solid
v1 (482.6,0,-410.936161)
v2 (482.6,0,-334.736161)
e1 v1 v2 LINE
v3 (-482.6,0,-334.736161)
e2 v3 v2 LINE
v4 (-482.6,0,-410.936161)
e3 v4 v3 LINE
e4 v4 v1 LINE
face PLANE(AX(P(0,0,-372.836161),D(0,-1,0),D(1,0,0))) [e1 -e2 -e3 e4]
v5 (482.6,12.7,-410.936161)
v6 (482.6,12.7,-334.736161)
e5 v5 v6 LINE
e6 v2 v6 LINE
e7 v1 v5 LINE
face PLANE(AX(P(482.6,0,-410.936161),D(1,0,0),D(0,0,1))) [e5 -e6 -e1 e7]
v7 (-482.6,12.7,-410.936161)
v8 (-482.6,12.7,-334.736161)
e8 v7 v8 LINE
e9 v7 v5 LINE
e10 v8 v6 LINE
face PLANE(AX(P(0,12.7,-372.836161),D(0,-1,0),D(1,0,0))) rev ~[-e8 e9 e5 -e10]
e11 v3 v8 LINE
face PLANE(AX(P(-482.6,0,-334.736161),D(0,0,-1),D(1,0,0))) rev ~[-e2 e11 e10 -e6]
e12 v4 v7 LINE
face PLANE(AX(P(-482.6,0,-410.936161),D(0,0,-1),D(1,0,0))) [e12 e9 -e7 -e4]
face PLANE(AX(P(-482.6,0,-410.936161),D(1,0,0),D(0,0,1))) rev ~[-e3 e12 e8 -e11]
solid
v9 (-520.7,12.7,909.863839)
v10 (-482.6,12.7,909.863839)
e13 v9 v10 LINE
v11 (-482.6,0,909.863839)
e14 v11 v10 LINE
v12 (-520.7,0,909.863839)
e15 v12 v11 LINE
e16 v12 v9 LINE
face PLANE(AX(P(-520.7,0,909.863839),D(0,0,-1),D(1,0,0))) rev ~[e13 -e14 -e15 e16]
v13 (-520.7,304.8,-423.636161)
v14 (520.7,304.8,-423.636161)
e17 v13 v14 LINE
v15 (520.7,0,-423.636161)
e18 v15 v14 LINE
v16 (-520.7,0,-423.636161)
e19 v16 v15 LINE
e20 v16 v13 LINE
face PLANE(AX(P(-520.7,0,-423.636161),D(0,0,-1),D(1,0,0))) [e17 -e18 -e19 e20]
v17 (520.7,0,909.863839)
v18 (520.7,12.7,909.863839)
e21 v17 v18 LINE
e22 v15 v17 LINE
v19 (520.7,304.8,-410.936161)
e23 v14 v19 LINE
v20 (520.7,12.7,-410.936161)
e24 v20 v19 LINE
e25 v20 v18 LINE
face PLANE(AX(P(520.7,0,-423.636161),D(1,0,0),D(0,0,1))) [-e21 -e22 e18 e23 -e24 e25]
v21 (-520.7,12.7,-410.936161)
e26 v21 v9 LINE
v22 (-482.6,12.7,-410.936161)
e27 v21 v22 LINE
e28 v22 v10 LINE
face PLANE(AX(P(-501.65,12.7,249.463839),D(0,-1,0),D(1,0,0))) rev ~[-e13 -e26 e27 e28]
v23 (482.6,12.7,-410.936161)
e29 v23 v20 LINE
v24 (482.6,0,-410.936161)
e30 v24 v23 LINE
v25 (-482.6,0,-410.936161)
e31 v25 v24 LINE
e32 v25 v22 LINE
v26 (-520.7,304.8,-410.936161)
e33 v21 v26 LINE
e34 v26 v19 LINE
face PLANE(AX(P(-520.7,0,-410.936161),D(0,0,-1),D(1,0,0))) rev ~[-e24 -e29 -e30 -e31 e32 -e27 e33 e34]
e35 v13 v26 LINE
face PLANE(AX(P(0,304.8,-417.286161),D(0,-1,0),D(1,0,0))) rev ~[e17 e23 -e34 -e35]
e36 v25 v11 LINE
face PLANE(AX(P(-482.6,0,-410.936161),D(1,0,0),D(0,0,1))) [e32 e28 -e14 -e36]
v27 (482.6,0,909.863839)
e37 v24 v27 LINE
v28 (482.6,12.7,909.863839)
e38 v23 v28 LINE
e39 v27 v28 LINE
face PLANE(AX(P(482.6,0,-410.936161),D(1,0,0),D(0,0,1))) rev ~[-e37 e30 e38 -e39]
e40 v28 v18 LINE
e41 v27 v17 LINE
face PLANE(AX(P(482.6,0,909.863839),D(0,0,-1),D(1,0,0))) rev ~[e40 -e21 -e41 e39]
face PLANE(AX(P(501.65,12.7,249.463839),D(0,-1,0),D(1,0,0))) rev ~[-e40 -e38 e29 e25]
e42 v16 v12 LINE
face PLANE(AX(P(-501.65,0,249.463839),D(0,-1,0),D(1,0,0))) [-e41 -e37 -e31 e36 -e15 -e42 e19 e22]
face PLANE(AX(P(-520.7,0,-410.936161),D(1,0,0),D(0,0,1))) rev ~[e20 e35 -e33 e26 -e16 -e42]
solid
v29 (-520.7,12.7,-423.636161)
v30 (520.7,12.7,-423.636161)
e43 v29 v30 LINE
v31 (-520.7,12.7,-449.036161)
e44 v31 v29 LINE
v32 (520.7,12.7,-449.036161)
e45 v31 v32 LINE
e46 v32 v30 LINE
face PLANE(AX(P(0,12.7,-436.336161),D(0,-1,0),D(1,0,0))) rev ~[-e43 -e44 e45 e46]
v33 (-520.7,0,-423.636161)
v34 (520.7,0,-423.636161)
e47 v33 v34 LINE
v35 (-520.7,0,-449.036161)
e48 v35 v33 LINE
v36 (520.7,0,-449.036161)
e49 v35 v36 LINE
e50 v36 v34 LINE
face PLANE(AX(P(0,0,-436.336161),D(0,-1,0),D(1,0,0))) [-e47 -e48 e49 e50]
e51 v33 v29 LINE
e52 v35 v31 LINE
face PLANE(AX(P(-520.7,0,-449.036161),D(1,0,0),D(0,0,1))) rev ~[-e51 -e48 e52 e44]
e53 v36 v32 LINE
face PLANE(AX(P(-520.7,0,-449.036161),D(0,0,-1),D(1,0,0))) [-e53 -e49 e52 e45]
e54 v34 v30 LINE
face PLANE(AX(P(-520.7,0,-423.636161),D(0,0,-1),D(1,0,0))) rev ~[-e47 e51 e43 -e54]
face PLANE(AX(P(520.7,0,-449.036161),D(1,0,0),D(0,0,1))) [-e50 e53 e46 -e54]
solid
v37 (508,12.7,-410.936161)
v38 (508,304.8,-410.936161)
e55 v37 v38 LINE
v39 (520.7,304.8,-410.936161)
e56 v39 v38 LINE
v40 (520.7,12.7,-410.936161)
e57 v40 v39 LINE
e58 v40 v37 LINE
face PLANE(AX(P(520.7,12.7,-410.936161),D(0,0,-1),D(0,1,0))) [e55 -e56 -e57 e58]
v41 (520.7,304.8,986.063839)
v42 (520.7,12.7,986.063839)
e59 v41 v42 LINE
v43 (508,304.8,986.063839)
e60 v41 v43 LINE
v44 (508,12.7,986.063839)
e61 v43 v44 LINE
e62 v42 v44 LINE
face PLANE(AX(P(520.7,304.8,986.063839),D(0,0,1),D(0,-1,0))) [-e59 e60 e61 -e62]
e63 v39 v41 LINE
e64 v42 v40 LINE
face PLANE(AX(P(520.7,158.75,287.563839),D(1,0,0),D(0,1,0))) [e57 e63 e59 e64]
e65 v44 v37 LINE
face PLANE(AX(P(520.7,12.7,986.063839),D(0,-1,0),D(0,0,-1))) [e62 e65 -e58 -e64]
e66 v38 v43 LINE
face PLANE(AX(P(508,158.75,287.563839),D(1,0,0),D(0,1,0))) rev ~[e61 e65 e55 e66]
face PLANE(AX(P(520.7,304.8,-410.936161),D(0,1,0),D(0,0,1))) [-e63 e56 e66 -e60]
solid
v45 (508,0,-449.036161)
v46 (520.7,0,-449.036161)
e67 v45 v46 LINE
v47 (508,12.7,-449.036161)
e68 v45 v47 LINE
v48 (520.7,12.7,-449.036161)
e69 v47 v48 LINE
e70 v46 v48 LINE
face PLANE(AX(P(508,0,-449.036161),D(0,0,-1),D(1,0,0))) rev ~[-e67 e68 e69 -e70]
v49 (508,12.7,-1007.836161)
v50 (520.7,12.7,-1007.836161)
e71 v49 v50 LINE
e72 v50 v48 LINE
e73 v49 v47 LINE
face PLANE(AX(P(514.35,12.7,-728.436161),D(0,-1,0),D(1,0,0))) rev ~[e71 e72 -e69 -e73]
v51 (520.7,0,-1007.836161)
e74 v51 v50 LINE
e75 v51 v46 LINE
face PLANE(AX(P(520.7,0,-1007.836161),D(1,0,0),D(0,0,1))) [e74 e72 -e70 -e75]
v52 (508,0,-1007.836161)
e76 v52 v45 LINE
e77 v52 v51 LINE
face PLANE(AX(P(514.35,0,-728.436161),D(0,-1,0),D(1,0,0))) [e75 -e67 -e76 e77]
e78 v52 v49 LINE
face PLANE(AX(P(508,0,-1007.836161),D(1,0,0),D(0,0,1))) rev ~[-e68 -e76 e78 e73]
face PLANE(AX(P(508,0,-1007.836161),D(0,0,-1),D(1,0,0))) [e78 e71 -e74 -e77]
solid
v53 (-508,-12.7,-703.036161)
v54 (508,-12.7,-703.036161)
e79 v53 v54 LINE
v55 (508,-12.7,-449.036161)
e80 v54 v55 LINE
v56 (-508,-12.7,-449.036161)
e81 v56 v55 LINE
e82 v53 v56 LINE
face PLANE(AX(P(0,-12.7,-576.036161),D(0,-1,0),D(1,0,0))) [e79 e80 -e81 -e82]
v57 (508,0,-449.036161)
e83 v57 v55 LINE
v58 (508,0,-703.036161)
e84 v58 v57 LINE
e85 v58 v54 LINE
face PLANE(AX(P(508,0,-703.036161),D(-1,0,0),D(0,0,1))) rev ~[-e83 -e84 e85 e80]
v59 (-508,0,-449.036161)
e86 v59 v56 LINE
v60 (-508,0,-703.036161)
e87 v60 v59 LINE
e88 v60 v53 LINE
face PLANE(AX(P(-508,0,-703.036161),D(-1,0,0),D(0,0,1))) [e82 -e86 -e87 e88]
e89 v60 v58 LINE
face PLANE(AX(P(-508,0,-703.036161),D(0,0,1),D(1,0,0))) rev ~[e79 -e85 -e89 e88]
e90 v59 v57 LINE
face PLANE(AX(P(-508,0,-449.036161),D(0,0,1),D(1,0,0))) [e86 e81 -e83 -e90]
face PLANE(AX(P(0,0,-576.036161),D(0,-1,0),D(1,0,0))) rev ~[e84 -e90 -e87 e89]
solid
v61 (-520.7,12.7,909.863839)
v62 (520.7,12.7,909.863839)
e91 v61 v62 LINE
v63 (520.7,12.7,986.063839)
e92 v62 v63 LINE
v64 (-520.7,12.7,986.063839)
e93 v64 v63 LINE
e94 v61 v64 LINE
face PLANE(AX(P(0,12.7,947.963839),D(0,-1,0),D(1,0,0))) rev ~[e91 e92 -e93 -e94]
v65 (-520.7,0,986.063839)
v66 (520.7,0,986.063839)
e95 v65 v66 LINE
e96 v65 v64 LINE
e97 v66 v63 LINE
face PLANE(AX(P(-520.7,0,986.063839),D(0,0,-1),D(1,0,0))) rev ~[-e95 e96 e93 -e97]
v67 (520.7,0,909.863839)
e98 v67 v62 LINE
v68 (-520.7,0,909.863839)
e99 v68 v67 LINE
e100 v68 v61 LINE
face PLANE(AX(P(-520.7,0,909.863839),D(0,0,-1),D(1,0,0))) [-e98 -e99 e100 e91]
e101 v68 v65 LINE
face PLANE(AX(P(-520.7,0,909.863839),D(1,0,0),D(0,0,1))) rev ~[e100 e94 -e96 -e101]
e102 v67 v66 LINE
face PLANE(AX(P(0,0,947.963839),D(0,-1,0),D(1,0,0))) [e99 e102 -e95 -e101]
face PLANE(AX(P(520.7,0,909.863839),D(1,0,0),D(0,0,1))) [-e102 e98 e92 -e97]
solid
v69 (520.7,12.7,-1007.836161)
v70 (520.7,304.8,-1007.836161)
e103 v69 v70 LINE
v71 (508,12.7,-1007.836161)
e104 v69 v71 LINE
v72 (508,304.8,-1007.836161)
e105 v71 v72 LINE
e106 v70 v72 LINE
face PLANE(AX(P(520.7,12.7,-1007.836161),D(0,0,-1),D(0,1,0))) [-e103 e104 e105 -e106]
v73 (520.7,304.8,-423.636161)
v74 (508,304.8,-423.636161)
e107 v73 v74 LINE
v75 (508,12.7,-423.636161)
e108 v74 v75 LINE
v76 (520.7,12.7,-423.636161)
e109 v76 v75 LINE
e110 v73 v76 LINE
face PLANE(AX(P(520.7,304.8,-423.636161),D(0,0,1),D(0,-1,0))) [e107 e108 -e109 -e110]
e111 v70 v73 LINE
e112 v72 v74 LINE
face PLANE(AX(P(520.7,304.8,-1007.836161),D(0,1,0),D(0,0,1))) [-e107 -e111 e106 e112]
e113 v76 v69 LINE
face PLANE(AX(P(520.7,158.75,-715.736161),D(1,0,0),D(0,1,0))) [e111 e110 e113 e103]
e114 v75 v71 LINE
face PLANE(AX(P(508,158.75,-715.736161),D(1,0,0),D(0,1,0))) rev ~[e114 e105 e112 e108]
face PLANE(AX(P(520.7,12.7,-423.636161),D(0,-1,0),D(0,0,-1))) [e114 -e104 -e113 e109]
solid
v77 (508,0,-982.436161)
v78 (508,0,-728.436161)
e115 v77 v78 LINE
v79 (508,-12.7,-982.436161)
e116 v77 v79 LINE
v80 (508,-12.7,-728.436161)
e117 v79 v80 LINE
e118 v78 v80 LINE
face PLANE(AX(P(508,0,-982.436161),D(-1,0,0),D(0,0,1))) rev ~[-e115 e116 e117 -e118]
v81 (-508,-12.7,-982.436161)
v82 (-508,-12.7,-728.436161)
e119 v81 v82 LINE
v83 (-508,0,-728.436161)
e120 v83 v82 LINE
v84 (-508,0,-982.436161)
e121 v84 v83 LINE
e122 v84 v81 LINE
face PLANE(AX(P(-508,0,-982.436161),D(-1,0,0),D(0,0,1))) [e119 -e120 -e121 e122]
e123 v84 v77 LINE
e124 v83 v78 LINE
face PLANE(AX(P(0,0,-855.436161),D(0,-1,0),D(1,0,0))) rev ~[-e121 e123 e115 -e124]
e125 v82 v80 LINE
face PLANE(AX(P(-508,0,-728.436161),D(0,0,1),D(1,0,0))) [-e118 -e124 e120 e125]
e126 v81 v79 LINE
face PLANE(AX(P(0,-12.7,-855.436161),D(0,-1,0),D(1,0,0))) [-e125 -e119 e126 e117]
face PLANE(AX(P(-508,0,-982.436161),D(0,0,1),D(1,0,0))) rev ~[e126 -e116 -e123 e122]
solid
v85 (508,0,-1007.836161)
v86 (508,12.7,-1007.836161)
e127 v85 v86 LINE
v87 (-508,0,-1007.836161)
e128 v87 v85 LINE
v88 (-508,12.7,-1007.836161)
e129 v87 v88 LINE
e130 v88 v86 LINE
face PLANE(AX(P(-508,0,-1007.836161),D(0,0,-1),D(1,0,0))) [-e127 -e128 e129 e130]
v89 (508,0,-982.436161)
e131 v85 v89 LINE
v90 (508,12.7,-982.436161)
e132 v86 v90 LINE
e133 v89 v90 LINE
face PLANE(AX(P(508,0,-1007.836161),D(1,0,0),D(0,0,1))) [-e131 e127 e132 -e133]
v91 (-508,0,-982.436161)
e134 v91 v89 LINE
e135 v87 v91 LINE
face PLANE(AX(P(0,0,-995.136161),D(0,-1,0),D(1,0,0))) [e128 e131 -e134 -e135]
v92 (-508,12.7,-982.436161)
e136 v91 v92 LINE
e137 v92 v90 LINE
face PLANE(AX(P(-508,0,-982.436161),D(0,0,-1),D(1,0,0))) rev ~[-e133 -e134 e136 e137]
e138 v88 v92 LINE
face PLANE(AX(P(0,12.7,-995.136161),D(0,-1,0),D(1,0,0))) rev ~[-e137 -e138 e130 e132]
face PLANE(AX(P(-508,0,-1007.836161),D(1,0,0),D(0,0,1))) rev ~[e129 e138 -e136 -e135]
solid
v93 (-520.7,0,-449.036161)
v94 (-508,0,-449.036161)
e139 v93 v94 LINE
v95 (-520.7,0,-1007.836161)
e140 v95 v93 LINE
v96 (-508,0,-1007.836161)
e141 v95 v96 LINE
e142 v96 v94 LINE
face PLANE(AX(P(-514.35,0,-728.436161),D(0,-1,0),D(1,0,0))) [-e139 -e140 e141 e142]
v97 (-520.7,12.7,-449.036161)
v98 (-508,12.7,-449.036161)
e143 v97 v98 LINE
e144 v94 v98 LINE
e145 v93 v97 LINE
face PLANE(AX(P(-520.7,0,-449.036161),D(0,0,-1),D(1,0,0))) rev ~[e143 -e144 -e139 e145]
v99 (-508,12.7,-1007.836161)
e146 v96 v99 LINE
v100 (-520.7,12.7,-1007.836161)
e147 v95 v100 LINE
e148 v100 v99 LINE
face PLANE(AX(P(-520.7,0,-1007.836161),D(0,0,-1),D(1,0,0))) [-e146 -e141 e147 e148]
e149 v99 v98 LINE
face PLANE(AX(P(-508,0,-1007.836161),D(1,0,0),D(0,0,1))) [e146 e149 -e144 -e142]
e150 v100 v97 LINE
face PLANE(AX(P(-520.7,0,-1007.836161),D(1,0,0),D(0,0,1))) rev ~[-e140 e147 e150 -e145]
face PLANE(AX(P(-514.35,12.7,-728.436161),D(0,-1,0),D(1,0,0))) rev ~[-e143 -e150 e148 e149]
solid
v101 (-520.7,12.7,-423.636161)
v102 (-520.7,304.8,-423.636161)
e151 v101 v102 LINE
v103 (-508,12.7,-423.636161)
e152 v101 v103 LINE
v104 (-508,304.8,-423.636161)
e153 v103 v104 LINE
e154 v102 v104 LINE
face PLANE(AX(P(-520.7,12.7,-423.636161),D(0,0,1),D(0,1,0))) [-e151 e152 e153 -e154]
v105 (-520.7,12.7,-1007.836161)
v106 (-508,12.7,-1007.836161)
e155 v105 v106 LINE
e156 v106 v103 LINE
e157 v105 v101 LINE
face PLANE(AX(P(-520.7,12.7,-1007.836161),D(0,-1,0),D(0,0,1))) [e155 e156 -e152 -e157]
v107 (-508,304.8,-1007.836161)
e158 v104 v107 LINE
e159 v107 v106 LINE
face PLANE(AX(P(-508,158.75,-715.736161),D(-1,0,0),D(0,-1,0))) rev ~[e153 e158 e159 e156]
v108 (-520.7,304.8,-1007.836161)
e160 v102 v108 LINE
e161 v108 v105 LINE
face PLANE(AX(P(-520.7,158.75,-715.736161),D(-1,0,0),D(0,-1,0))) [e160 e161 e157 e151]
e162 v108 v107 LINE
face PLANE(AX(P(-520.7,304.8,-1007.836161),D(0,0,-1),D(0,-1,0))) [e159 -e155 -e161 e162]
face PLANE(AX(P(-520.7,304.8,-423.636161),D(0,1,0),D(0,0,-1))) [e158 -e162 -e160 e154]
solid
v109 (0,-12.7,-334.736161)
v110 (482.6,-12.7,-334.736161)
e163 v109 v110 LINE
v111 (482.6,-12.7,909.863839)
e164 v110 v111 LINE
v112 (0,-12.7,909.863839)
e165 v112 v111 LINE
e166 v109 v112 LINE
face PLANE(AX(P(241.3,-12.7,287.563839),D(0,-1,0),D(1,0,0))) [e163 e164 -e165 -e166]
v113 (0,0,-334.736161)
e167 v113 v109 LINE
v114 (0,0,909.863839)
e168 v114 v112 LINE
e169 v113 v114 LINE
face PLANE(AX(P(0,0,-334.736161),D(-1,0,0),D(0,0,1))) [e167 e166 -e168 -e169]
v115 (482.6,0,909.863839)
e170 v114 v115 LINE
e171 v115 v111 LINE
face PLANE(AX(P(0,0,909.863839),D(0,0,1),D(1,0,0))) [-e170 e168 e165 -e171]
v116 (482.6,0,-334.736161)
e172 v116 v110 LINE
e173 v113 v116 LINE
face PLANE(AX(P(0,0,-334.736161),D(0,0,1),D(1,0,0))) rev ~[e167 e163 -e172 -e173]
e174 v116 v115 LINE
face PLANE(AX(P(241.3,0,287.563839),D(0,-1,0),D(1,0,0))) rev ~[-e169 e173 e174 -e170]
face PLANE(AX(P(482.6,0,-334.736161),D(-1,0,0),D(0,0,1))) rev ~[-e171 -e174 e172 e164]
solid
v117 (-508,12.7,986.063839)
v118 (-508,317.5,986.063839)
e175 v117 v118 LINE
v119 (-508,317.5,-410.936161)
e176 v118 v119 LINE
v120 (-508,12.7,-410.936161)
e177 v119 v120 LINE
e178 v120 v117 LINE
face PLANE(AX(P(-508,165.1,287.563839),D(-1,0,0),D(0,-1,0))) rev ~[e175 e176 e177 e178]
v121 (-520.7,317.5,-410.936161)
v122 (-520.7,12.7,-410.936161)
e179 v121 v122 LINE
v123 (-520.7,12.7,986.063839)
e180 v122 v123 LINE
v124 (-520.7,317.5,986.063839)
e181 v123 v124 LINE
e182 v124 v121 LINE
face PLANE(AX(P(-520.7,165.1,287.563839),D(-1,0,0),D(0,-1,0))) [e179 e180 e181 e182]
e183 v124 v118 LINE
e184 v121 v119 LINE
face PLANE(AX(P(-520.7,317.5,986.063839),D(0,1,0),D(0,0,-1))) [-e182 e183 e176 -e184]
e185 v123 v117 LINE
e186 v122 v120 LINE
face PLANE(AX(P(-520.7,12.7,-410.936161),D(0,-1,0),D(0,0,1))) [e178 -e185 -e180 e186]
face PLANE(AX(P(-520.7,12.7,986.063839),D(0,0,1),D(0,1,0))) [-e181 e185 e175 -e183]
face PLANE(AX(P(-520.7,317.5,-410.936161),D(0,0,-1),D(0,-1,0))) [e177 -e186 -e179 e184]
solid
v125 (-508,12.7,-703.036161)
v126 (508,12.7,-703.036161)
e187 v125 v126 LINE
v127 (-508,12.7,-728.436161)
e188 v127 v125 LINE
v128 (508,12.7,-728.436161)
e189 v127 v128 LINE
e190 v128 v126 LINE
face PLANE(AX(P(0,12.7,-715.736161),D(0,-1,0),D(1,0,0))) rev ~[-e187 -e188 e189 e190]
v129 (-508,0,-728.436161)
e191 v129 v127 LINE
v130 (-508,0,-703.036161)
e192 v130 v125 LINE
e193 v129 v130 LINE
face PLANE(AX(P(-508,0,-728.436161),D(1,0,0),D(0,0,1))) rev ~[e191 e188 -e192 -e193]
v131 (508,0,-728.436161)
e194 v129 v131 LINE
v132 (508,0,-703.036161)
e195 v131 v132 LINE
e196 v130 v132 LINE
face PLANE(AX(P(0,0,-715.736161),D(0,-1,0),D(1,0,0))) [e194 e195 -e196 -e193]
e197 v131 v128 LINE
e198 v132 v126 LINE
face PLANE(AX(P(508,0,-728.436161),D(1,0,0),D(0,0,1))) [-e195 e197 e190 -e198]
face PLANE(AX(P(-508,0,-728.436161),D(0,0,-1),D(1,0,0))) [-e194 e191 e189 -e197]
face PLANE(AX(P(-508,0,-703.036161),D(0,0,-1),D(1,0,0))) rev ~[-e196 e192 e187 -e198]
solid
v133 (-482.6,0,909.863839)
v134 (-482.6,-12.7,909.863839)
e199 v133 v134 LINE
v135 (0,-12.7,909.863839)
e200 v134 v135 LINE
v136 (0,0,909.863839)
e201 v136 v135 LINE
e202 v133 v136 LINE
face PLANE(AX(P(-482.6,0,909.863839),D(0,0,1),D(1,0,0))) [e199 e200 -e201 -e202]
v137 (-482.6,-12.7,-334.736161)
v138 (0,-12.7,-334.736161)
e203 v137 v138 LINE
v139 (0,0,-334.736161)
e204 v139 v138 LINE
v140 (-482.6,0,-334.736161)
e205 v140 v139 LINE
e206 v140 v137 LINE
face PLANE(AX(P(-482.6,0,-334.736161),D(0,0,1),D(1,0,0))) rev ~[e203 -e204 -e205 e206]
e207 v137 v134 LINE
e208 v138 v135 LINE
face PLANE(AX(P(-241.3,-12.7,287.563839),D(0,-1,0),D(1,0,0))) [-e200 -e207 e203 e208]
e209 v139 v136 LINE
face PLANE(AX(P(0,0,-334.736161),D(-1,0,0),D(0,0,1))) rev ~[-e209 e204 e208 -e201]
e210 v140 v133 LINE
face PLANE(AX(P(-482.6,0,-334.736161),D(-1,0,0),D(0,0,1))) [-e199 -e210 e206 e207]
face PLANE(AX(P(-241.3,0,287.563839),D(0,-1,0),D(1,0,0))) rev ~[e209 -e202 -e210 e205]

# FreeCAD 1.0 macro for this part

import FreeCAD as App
import Part
import Sketcher

V = App.Vector
Q = App.Units.Quantity

doc = App.newDocument("Part")
params = doc.addObject("Spreadsheet::Sheet", "Params")
for row, (alias, value) in enumerate([
    ("sketch1_width", "19 in"),
    ("sketch1_height", "49 in"),
    ("pad1_length", "0.5 in"),
    ("sketch2_width", "40 in"),
    ("sketch2_height", "13 in"),
    ("pad2_length", "0.5 in"),
    ("sketch3_width", "10 in"),
    ("sketch3_height", "40 in"),
    ("pad3_length", "0.5 in"),
    ("sketch4_width", "40 in"),
    ("sketch4_height", "10 in"),
    ("pad4_length", "0.5 in"),
    ("sketch5_width", "40 in"),
    ("sketch5_height", "10 in"),
    ("pad5_length", "0.5 in"),
    ("sketch6_width", "19 in"),
    ("sketch6_height", "49 in"),
    ("pad6_length", "0.5 in"),
    ("sketch7_width", "19 in"),
    ("sketch7_height", "49 in"),
    ("pad7_length", "0.5 in"),
    ("sketch8_width", "41 in"),
    ("sketch8_height", "1 in"),
    ("pad8_length", "0.5 in"),
    ("sketch9_width", "38 in"),
    ("sketch9_height", "3 in"),
    ("pad9_length", "0.5 in"),
    ("sketch10_width", "40 in"),
    ("sketch10_height", "1 in"),
    ("pad10_length", "0.5 in"),
    ("sketch11_width", "40 in"),
    ("sketch11_height", "1 in"),
    ("pad11_length", "0.5 in"),
    ("sketch12_width", "41 in"),
    ("sketch12_height", "3 in"),
    ("pad12_length", "0.5 in"),
    ("sketch13_width", "41 in"),
    ("sketch13_height", "0.5 in"),
    ("pad13_length", "12 in"),
    ("sketch14_height", "52 in"),
    ("sketch14_width", "1.5 in"),
    ("pad14_length", "0.5 in"),
    ("sketch15_height", "22 in"),
    ("sketch15_width", "0.5 in"),
    ("pad15_length", "0.5 in"),
    ("sketch16_height", "23 in"),
    ("sketch16_width", "11.5 in"),
    ("pad16_length", "0.5 in"),
    ("sketch17_height", "23 in"),
    ("sketch17_width", "11.5 in"),
    ("pad17_length", "0.5 in"),
    ("sketch18_width", "12 in"),
    ("sketch18_height", "55 in"),
    ("pad18_length", "0.5 in"),
    ("sketch19_height", "55 in"),
    ("sketch19_width", "11.5 in"),
    ("pad19_length", "0.5 in"),
], start=1):
    params.set(f"A{row}", alias)
    params.set(f"B{row}", "=" + value)
    params.setAlias(f"B{row}", alias)

body = doc.addObject("PartDesign::Body", "Body")

sketch1 = body.newObject("Sketcher::SketchObject", "Sketch")
sketch1.AttachmentSupport = (doc.getObject("XZ_Plane"), [""])
sketch1.MapMode = "FlatFace"
sketch1.addGeometry([
    Part.LineSegment(V(-482.6, 838.991054, 0), V(-482.6, -405.608946, 0)),
    Part.LineSegment(V(-482.6, -405.608946, 0), V(0, -405.608946, 0)),
    Part.LineSegment(V(0, -405.608946, 0), V(0, 838.991054, 0)),
    Part.LineSegment(V(0, 838.991054, 0), V(-482.6, 838.991054, 0)),
], False)
sketch1.addConstraint([
    Sketcher.Constraint("Coincident", 0, 2, 1, 1),
    Sketcher.Constraint("Coincident", 1, 2, 2, 1),
    Sketcher.Constraint("Coincident", 2, 2, 3, 1),
    Sketcher.Constraint("Coincident", 3, 2, 0, 1),
    Sketcher.Constraint("Vertical", 0),
    Sketcher.Constraint("Horizontal", 1),
    Sketcher.Constraint("Vertical", 2),
    Sketcher.Constraint("Horizontal", 3),
    Sketcher.Constraint("PointOnObject", 1, 2, -2),
    Sketcher.Constraint("DistanceX", 1, 1, 1, 2, Q("19 in")),
    Sketcher.Constraint("DistanceY", 0, 2, 0, 1, Q("49 in")),
    Sketcher.Constraint("DistanceY", 0, 2, -1, 1, 405.608946),
])
sketch1.setExpression("Constraints[9]", "Params.sketch1_width")
sketch1.setExpression("Constraints[10]", "Params.sketch1_height")
pad1 = body.newObject("PartDesign::Pad", "Pad")
pad1.Profile = sketch1
pad1.setExpression("Length", "Params.pad1_length")
body2 = doc.addObject("PartDesign::Body", "Body001")

sketch2 = body2.newObject("Sketcher::SketchObject", "Sketch001")
sketch2.AttachmentSupport = (doc.getObject("XZ_Plane001"), [""])
sketch2.MapMode = "FlatFace"
sketch2.addGeometry([
    Part.LineSegment(V(122.252481, 18.599273, 0), V(122.252481, -311.600727, 0)),
    Part.LineSegment(V(122.252481, -311.600727, 0), V(1138.252481, -311.600727, 0)),
    Part.LineSegment(V(1138.252481, -311.600727, 0), V(1138.252481, 18.599273, 0)),
    Part.LineSegment(V(1138.252481, 18.599273, 0), V(122.252481, 18.599273, 0)),
], False)
sketch2.addConstraint([
    Sketcher.Constraint("Coincident", 0, 2, 1, 1),
    Sketcher.Constraint("Coincident", 1, 2, 2, 1),
    Sketcher.Constraint("Coincident", 2, 2, 3, 1),
    Sketcher.Constraint("Coincident", 3, 2, 0, 1),
    Sketcher.Constraint("Vertical", 0),
    Sketcher.Constraint("Horizontal", 1),
    Sketcher.Constraint("Vertical", 2),
    Sketcher.Constraint("Horizontal", 3),
    Sketcher.Constraint("DistanceX", 1, 1, 1, 2, Q("40 in")),
    Sketcher.Constraint("DistanceY", 0, 2, 0, 1, Q("13 in")),
    Sketcher.Constraint("DistanceX", -1, 1, 0, 2, 122.252481),
    Sketcher.Constraint("DistanceY", 0, 2, -1, 1, 311.600727),
])
sketch2.setExpression("Constraints[8]", "Params.sketch2_width")
sketch2.setExpression("Constraints[9]", "Params.sketch2_height")
pad2 = body2.newObject("PartDesign::Pad", "Pad001")
pad2.Profile = sketch2
pad2.setExpression("Length", "Params.pad2_length")
body3 = doc.addObject("PartDesign::Body", "Body002")

sketch3 = body3.newObject("Sketcher::SketchObject", "Sketch002")
sketch3.AttachmentSupport = (doc.getObject("XZ_Plane002"), [""])
sketch3.MapMode = "FlatFace"
sketch3.addGeometry([
    Part.LineSegment(V(525.460337, 1708.687145, 0), V(525.460337, 692.687145, 0)),
    Part.LineSegment(V(525.460337, 692.687145, 0), V(779.460337, 692.687145, 0)),
    Part.LineSegment(V(779.460337, 692.687145, 0), V(779.460337, 1708.687145, 0)),
    Part.LineSegment(V(779.460337, 1708.687145, 0), V(525.460337, 1708.687145, 0)),
], False)
sketch3.addConstraint([
    Sketcher.Constraint("Coincident", 0, 2, 1, 1),
    Sketcher.Constraint("Coincident", 1, 2, 2, 1),
    Sketcher.Constraint("Coincident", 2, 2, 3, 1),
    Sketcher.Constraint("Coincident", 3, 2, 0, 1),
    Sketcher.Constraint("Vertical", 0),
    Sketcher.Constraint("Horizontal", 1),
    Sketcher.Constraint("Vertical", 2),
    Sketcher.Constraint("Horizontal", 3),
    Sketcher.Constraint("DistanceX", 1, 1, 1, 2, Q("10 in")),
    Sketcher.Constraint("DistanceY", 0, 2, 0, 1, Q("40 in")),
    Sketcher.Constraint("DistanceX", -1, 1, 0, 2, 525.460337),
    Sketcher.Constraint("DistanceY", -1, 1, 0, 2, 692.687145),
])
sketch3.setExpression("Constraints[8]", "Params.sketch3_width")
sketch3.setExpression("Constraints[9]", "Params.sketch3_height")
pad3 = body3.newObject("PartDesign::Pad", "Pad002")
pad3.Profile = sketch3
pad3.setExpression("Length", "Params.pad3_length")
body4 = doc.addObject("PartDesign::Body", "Body003")

sketch4 = body4.newObject("Sketcher::SketchObject", "Sketch003")
sketch4.AttachmentSupport = (doc.getObject("XZ_Plane003"), [""])
sketch4.MapMode = "FlatFace"
sketch4.addGeometry([
    Part.LineSegment(V(-508, -728.436161, 0), V(-508, -982.436161, 0)),
    Part.LineSegment(V(-508, -982.436161, 0), V(508, -982.436161, 0)),
    Part.LineSegment(V(508, -982.436161, 0), V(508, -728.436161, 0)),
    Part.LineSegment(V(508, -728.436161, 0), V(-508, -728.436161, 0)),
], False)
sketch4.addConstraint([
    Sketcher.Constraint("Coincident", 0, 2, 1, 1),
    Sketcher.Constraint("Coincident", 1, 2, 2, 1),
    Sketcher.Constraint("Coincident", 2, 2, 3, 1),
    Sketcher.Constraint("Coincident", 3, 2, 0, 1),
    Sketcher.Constraint("Vertical", 0),
    Sketcher.Constraint("Horizontal", 1),
    Sketcher.Constraint("Vertical", 2),
    Sketcher.Constraint("Horizontal", 3),
    Sketcher.Constraint("DistanceX", 1, 1, 1, 2, Q("40 in")),
    Sketcher.Constraint("DistanceY", 0, 2, 0, 1, Q("10 in")),
    Sketcher.Constraint("DistanceX", 0, 2, -1, 1, Q("20 in")),
    Sketcher.Constraint("DistanceY", 0, 2, -1, 1, 982.436161),
])
sketch4.setExpression("Constraints[8]", "Params.sketch4_width")
sketch4.setExpression("Constraints[9]", "Params.sketch4_height")
pad4 = body4.newObject("PartDesign::Pad", "Pad003")
pad4.Profile = sketch4
pad4.setExpression("Length", "Params.pad4_length")
body5 = doc.addObject("PartDesign::Body", "Body004")

sketch5 = body5.newObject("Sketcher::SketchObject", "Sketch004")
sketch5.AttachmentSupport = (doc.getObject("XZ_Plane004"), [""])
sketch5.MapMode = "FlatFace"
sketch5.addGeometry([
    Part.LineSegment(V(-508, -449.036161, 0), V(-508, -703.036161, 0)),
    Part.LineSegment(V(-508, -703.036161, 0), V(508, -703.036161, 0)),
    Part.LineSegment(V(508, -703.036161, 0), V(508, -449.036161, 0)),
    Part.LineSegment(V(508, -449.036161, 0), V(-508, -449.036161, 0)),
], False)
sketch5.addConstraint([
    Sketcher.Constraint("Coincident", 0, 2, 1, 1),
    Sketcher.Constraint("Coincident", 1, 2, 2, 1),
    Sketcher.Constraint("Coincident", 2, 2, 3, 1),
    Sketcher.Constraint("Coincident", 3, 2, 0, 1),
    Sketcher.Constraint("Vertical", 0),
    Sketcher.Constraint("Horizontal", 1),
    Sketcher.Constraint("Vertical", 2),
    Sketcher.Constraint("Horizontal", 3),
    Sketcher.Constraint("DistanceX", 1, 1, 1, 2, Q("40 in")),
    Sketcher.Constraint("DistanceY", 0, 2, 0, 1, Q("10 in")),
    Sketcher.Constraint("DistanceX", 0, 2, -1, 1, Q("20 in")),
    Sketcher.Constraint("DistanceY", 0, 2, -1, 1, 703.036161),
])
sketch5.setExpression("Constraints[8]", "Params.sketch5_width")
sketch5.setExpression("Constraints[9]", "Params.sketch5_height")
pad5 = body5.newObject("PartDesign::Pad", "Pad004")
pad5.Profile = sketch5
pad5.setExpression("Length", "Params.pad5_length")
body6 = doc.addObject("PartDesign::Body", "Body005")

sketch6 = body6.newObject("Sketcher::SketchObject", "Sketch005")
sketch6.AttachmentSupport = (doc.getObject("XZ_Plane005"), [""])
sketch6.MapMode = "FlatFace"
sketch6.addGeometry([
    Part.LineSegment(V(-482.6, 909.863839, 0), V(-482.6, -334.736161, 0)),
    Part.LineSegment(V(-482.6, -334.736161, 0), V(0, -334.736161, 0)),
    Part.LineSegment(V(0, -334.736161, 0), V(0, 909.863839, 0)),
    Part.LineSegment(V(0, 909.863839, 0), V(-482.6, 909.863839, 0)),
], False)
sketch6.addConstraint([
    Sketcher.Constraint("Coincident", 0, 2, 1, 1),
    Sketcher.Constraint("Coincident", 1, 2, 2, 1),
    Sketcher.Constraint("Coincident", 2, 2, 3, 1),
    Sketcher.Constraint("Coincident", 3, 2, 0, 1),
    Sketcher.Constraint("Vertical", 0),
    Sketcher.Constraint("Horizontal", 1),
    Sketcher.Constraint("Vertical", 2),
    Sketcher.Constraint("Horizontal", 3),
    Sketcher.Constraint("PointOnObject", 1, 2, -2),
    Sketcher.Constraint("DistanceX", 1, 1, 1, 2, Q("19 in")),
    Sketcher.Constraint("DistanceY", 0, 2, 0, 1, Q("49 in")),
    Sketcher.Constraint("DistanceY", 0, 2, -1, 1, 334.736161),
])
sketch6.setExpression("Constraints[9]", "Params.sketch6_width")
sketch6.setExpression("Constraints[10]", "Params.sketch6_height")
pad6 = body6.newObject("PartDesign::Pad", "Pad005")
pad6.Profile = sketch6
pad6.setExpression("Length", "Params.pad6_length")
body7 = doc.addObject("PartDesign::Body", "Body006")

sketch7 = body7.newObject("Sketcher::SketchObject", "Sketch006")
sketch7.AttachmentSupport = (doc.getObject("XZ_Plane006"), [""])
sketch7.MapMode = "FlatFace"
sketch7.addGeometry([
    Part.LineSegment(V(0, 909.863839, 0), V(0, -334.736161, 0)),
    Part.LineSegment(V(0, -334.736161, 0), V(482.6, -334.736161, 0)),
    Part.LineSegment(V(482.6, -334.736161, 0), V(482.6, 909.863839, 0)),
    Part.LineSegment(V(482.6, 909.863839, 0), V(0, 909.863839, 0)),
], False)
sketch7.addConstraint([
    Sketcher.Constraint("Coincident", 0, 2, 1, 1),
    Sketcher.Constraint("Coincident", 1, 2, 2, 1),
    Sketcher.Constraint("Coincident", 2, 2, 3, 1),
    Sketcher.Constraint("Coincident", 3, 2, 0, 1),
    Sketcher.Constraint("Vertical", 0),
    Sketcher.Constraint("Horizontal", 1),
    Sketcher.Constraint("Vertical", 2),
    Sketcher.Constraint("Horizontal", 3),
    Sketcher.Constraint("PointOnObject", 0, 2, -2),
    Sketcher.Constraint("DistanceX", 1, 1, 1, 2, Q("19 in")),
    Sketcher.Constraint("DistanceY", 0, 2, 0, 1, Q("49 in")),
    Sketcher.Constraint("DistanceY", 0, 2, -1, 1, 334.736161),
])
sketch7.setExpression("Constraints[9]", "Params.sketch7_width")
sketch7.setExpression("Constraints[10]", "Params.sketch7_height")
pad7 = body7.newObject("PartDesign::Pad", "Pad006")
pad7.Profile = sketch7
pad7.setExpression("Length", "Params.pad7_length")
body8 = doc.addObject("PartDesign::Body", "Body007")

sketch8 = body8.newObject("Sketcher::SketchObject", "Sketch007")
sketch8.AttachmentSupport = (doc.getObject("XZ_Plane007"), [""])
sketch8.MapMode = "FlatFace"
sketch8.addGeometry([
    Part.LineSegment(V(-520.7, -423.636161, 0), V(-520.7, -449.036161, 0)),
    Part.LineSegment(V(-520.7, -449.036161, 0), V(520.7, -449.036161, 0)),
    Part.LineSegment(V(520.7, -449.036161, 0), V(520.7, -423.636161, 0)),
    Part.LineSegment(V(520.7, -423.636161, 0), V(-520.7, -423.636161, 0)),
], False)
sketch8.addConstraint([
    Sketcher.Constraint("Coincident", 0, 2, 1, 1),
    Sketcher.Constraint("Coincident", 1, 2, 2, 1),
    Sketcher.Constraint("Coincident", 2, 2, 3, 1),
    Sketcher.Constraint("Coincident", 3, 2, 0, 1),
    Sketcher.Constraint("Vertical", 0),
    Sketcher.Constraint("Horizontal", 1),
    Sketcher.Constraint("Vertical", 2),
    Sketcher.Constraint("Horizontal", 3),
    Sketcher.Constraint("DistanceX", 1, 1, 1, 2, Q("41 in")),
    Sketcher.Constraint("DistanceY", 0, 2, 0, 1, Q("1 in")),
    Sketcher.Constraint("DistanceX", 0, 2, -1, 1, Q("20.5 in")),
    Sketcher.Constraint("DistanceY", 0, 2, -1, 1, 449.036161),
])
sketch8.setExpression("Constraints[8]", "Params.sketch8_width")
sketch8.setExpression("Constraints[9]", "Params.sketch8_height")
pad8 = body8.newObject("PartDesign::Pad", "Pad007")
pad8.Profile = sketch8
pad8.setExpression("Length", "Params.pad8_length")
pad8.Reversed = True
body9 = doc.addObject("PartDesign::Body", "Body008")

sketch9 = body9.newObject("Sketcher::SketchObject", "Sketch008")
sketch9.AttachmentSupport = (doc.getObject("XZ_Plane008"), [""])
sketch9.MapMode = "FlatFace"
sketch9.addGeometry([
    Part.LineSegment(V(-482.6, -334.736161, 0), V(-482.6, -410.936161, 0)),
    Part.LineSegment(V(-482.6, -410.936161, 0), V(482.6, -410.936161, 0)),
    Part.LineSegment(V(482.6, -410.936161, 0), V(482.6, -334.736161, 0)),
    Part.LineSegment(V(482.6, -334.736161, 0), V(-482.6, -334.736161, 0)),
], False)
sketch9.addConstraint([
    Sketcher.Constraint("Coincident", 0, 2, 1, 1),
    Sketcher.Constraint("Coincident", 1, 2, 2, 1),
    Sketcher.Constraint("Coincident", 2, 2, 3, 1),
    Sketcher.Constraint("Coincident", 3, 2, 0, 1),
    Sketcher.Constraint("Vertical", 0),
    Sketcher.Constraint("Horizontal", 1),
    Sketcher.Constraint("Vertical", 2),
    Sketcher.Constraint("Horizontal", 3),
    Sketcher.Constraint("DistanceX", 1, 1, 1, 2, Q("38 in")),
    Sketcher.Constraint("DistanceY", 0, 2, 0, 1, Q("3 in")),
    Sketcher.Constraint("DistanceX", 0, 2, -1, 1, Q("19 in")),
    Sketcher.Constraint("DistanceY", 0, 2, -1, 1, 410.936161),
])
sketch9.setExpression("Constraints[8]", "Params.sketch9_width")
sketch9.setExpression("Constraints[9]", "Params.sketch9_height")
pad9 = body9.newObject("PartDesign::Pad", "Pad008")
pad9.Profile = sketch9
pad9.setExpression("Length", "Params.pad9_length")
pad9.Reversed = True
body10 = doc.addObject("PartDesign::Body", "Body009")

sketch10 = body10.newObject("Sketcher::SketchObject", "Sketch009")
sketch10.AttachmentSupport = (doc.getObject("XZ_Plane009"), [""])
sketch10.MapMode = "FlatFace"
sketch10.addGeometry([
    Part.LineSegment(V(-508, -703.036161, 0), V(-508, -728.436161, 0)),
    Part.LineSegment(V(-508, -728.436161, 0), V(508, -728.436161, 0)),
    Part.LineSegment(V(508, -728.436161, 0), V(508, -703.036161, 0)),
    Part.LineSegment(V(508, -703.036161, 0), V(-508, -703.036161, 0)),
], False)
sketch10.addConstraint([
    Sketcher.Constraint("Coincident", 0, 2, 1, 1),
    Sketcher.Constraint("Coincident", 1, 2, 2, 1),
    Sketcher.Constraint("Coincident", 2, 2, 3, 1),
    Sketcher.Constraint("Coincident", 3, 2, 0, 1),
    Sketcher.Constraint("Vertical", 0),
    Sketcher.Constraint("Horizontal", 1),
    Sketcher.Constraint("Vertical", 2),
    Sketcher.Constraint("Horizontal", 3),
    Sketcher.Constraint("DistanceX", 1, 1, 1, 2, Q("40 in")),
    Sketcher.Constraint("DistanceY", 0, 2, 0, 1, Q("1 in")),
    Sketcher.Constraint("DistanceX", 0, 2, -1, 1, Q("20 in")),
    Sketcher.Constraint("DistanceY", 0, 2, -1, 1, 728.436161),
])
sketch10.setExpression("Constraints[8]", "Params.sketch10_width")
sketch10.setExpression("Constraints[9]", "Params.sketch10_height")
pad10 = body10.newObject("PartDesign::Pad", "Pad009")
pad10.Profile = sketch10
pad10.setExpression("Length", "Params.pad10_length")
pad10.Reversed = True
body11 = doc.addObject("PartDesign::Body", "Body010")

sketch11 = body11.newObject("Sketcher::SketchObject", "Sketch010")
sketch11.AttachmentSupport = (doc.getObject("XZ_Plane010"), [""])
sketch11.MapMode = "FlatFace"
sketch11.addGeometry([
    Part.LineSegment(V(-508, -982.436161, 0), V(-508, -1007.836161, 0)),
    Part.LineSegment(V(-508, -1007.836161, 0), V(508, -1007.836161, 0)),
    Part.LineSegment(V(508, -1007.836161, 0), V(508, -982.436161, 0)),
    Part.LineSegment(V(508, -982.436161, 0), V(-508, -982.436161, 0)),
], False)
sketch11.addConstraint([
    Sketcher.Constraint("Coincident", 0, 2, 1, 1),
    Sketcher.Constraint("Coincident", 1, 2, 2, 1),
    Sketcher.Constraint("Coincident", 2, 2, 3, 1),
    Sketcher.Constraint("Coincident", 3, 2, 0, 1),
    Sketcher.Constraint("Vertical", 0),
    Sketcher.Constraint("Horizontal", 1),
    Sketcher.Constraint("Vertical", 2),
    Sketcher.Constraint("Horizontal", 3),
    Sketcher.Constraint("DistanceX", 1, 1, 1, 2, Q("40 in")),
    Sketcher.Constraint("DistanceY", 0, 2, 0, 1, Q("1 in")),
    Sketcher.Constraint("DistanceX", 0, 2, -1, 1, Q("20 in")),
    Sketcher.Constraint("DistanceY", 0, 2, -1, 1, 1007.836161),
])
sketch11.setExpression("Constraints[8]", "Params.sketch11_width")
sketch11.setExpression("Constraints[9]", "Params.sketch11_height")
pad11 = body11.newObject("PartDesign::Pad", "Pad010")
pad11.Profile = sketch11
pad11.setExpression("Length", "Params.pad11_length")
pad11.Reversed = True
body12 = doc.addObject("PartDesign::Body", "Body011")

sketch12 = body12.newObject("Sketcher::SketchObject", "Sketch011")
sketch12.AttachmentSupport = (doc.getObject("XZ_Plane011"), [""])
sketch12.MapMode = "FlatFace"
sketch12.addGeometry([
    Part.LineSegment(V(-520.7, 986.063839, 0), V(-520.7, 909.863839, 0)),
    Part.LineSegment(V(-520.7, 909.863839, 0), V(520.7, 909.863839, 0)),
    Part.LineSegment(V(520.7, 909.863839, 0), V(520.7, 986.063839, 0)),
    Part.LineSegment(V(520.7, 986.063839, 0), V(-520.7, 986.063839, 0)),
], False)
sketch12.addConstraint([
    Sketcher.Constraint("Coincident", 0, 2, 1, 1),
    Sketcher.Constraint("Coincident", 1, 2, 2, 1),
    Sketcher.Constraint("Coincident", 2, 2, 3, 1),
    Sketcher.Constraint("Coincident", 3, 2, 0, 1),
    Sketcher.Constraint("Vertical", 0),
    Sketcher.Constraint("Horizontal", 1),
    Sketcher.Constraint("Vertical", 2),
    Sketcher.Constraint("Horizontal", 3),
    Sketcher.Constraint("DistanceX", 1, 1, 1, 2, Q("41 in")),
    Sketcher.Constraint("DistanceY", 0, 2, 0, 1, Q("3 in")),
    Sketcher.Constraint("DistanceX", 0, 2, -1, 1, Q("20.5 in")),
    Sketcher.Constraint("DistanceY", -1, 1, 0, 2, 909.863839),
])
sketch12.setExpression("Constraints[8]", "Params.sketch12_width")
sketch12.setExpression("Constraints[9]", "Params.sketch12_height")
pad12 = body12.newObject("PartDesign::Pad", "Pad011")
pad12.Profile = sketch12
pad12.setExpression("Length", "Params.pad12_length")
pad12.Reversed = True
body13 = doc.addObject("PartDesign::Body", "Body012")

sketch13 = body13.newObject("Sketcher::SketchObject", "Sketch012")
sketch13.AttachmentSupport = (doc.getObject("XZ_Plane012"), [""])
sketch13.MapMode = "FlatFace"
sketch13.addGeometry([
    Part.LineSegment(V(-520.7, -410.936161, 0), V(-520.7, -423.636161, 0)),
    Part.LineSegment(V(-520.7, -423.636161, 0), V(520.7, -423.636161, 0)),
    Part.LineSegment(V(520.7, -423.636161, 0), V(520.7, -410.936161, 0)),
    Part.LineSegment(V(520.7, -410.936161, 0), V(-520.7, -410.936161, 0)),
], False)
sketch13.addConstraint([
    Sketcher.Constraint("Coincident", 0, 2, 1, 1),
    Sketcher.Constraint("Coincident", 1, 2, 2, 1),
    Sketcher.Constraint("Coincident", 2, 2, 3, 1),
    Sketcher.Constraint("Coincident", 3, 2, 0, 1),
    Sketcher.Constraint("Vertical", 0),
    Sketcher.Constraint("Horizontal", 1),
    Sketcher.Constraint("Vertical", 2),
    Sketcher.Constraint("Horizontal", 3),
    Sketcher.Constraint("DistanceX", 1, 1, 1, 2, Q("41 in")),
    Sketcher.Constraint("DistanceY", 0, 2, 0, 1, Q("0.5 in")),
    Sketcher.Constraint("DistanceX", 0, 2, -1, 1, Q("20.5 in")),
    Sketcher.Constraint("DistanceY", 0, 2, -1, 1, 423.636161),
])
sketch13.setExpression("Constraints[8]", "Params.sketch13_width")
sketch13.setExpression("Constraints[9]", "Params.sketch13_height")
pad13 = body13.newObject("PartDesign::Pad", "Pad012")
pad13.Profile = sketch13
pad13.setExpression("Length", "Params.pad13_length")
pad13.Reversed = True

sketch14 = body13.newObject("Sketcher::SketchObject", "Sketch013")
sketch14.AttachmentSupport = (doc.getObject("XZ_Plane012"), [""])
sketch14.MapMode = "FlatFace"
sketch14.addGeometry([
    Part.LineSegment(V(-520.7, 909.863839, 0), V(-520.7, -410.936161, 0)),
    Part.LineSegment(V(-520.7, -410.936161, 0), V(-482.6, -410.936161, 0)),
    Part.LineSegment(V(-482.6, -410.936161, 0), V(-482.6, 909.863839, 0)),
    Part.LineSegment(V(-482.6, 909.863839, 0), V(-520.7, 909.863839, 0)),
    Part.LineSegment(V(482.6, 909.863839, 0), V(482.6, -410.936161, 0)),
    Part.LineSegment(V(482.6, -410.936161, 0), V(520.7, -410.936161, 0)),
    Part.LineSegment(V(520.7, -410.936161, 0), V(520.7, 909.863839, 0)),
    Part.LineSegment(V(520.7, 909.863839, 0), V(482.6, 909.863839, 0)),
], False)
sketch14.addConstraint([
    Sketcher.Constraint("Coincident", 0, 2, 1, 1),
    Sketcher.Constraint("Coincident", 1, 2, 2, 1),
    Sketcher.Constraint("Coincident", 2, 2, 3, 1),
    Sketcher.Constraint("Coincident", 3, 2, 0, 1),
    Sketcher.Constraint("Coincident", 4, 2, 5, 1),
    Sketcher.Constraint("Coincident", 5, 2, 6, 1),
    Sketcher.Constraint("Coincident", 6, 2, 7, 1),
    Sketcher.Constraint("Coincident", 7, 2, 4, 1),
    Sketcher.Constraint("Vertical", 0),
    Sketcher.Constraint("Horizontal", 1),
    Sketcher.Constraint("Vertical", 2),
    Sketcher.Constraint("Horizontal", 3),
    Sketcher.Constraint("Vertical", 4),
    Sketcher.Constraint("Horizontal", 5),
    Sketcher.Constraint("Vertical", 6),
    Sketcher.Constraint("Horizontal", 7),
    Sketcher.Constraint("Symmetric", 1, 2, 4, 2, -2),
    Sketcher.Constraint("Symmetric", 3, 2, 6, 2, -2),
    Sketcher.Constraint("DistanceY", 0, 2, 0, 1, Q("52 in")),
    Sketcher.Constraint("DistanceX", 1, 1, 1, 2, Q("1.5 in")),
    Sketcher.Constraint("DistanceX", 1, 2, -1, 1, Q("19 in")),
    Sketcher.Constraint("DistanceY", 0, 2, -1, 1, 410.936161),
])
sketch14.setExpression("Constraints[18]", "Params.sketch14_height")
sketch14.setExpression("Constraints[19]", "Params.sketch14_width")
pad14 = body13.newObject("PartDesign::Pad", "Pad013")
pad14.Profile = sketch14
pad14.setExpression("Length", "Params.pad14_length")
pad14.Reversed = True
body14 = doc.addObject("PartDesign::Body", "Body013")
body14.AllowCompound = True

sketch15 = body14.newObject("Sketcher::SketchObject", "Sketch014")
sketch15.AttachmentSupport = (doc.getObject("XZ_Plane013"), [""])
sketch15.MapMode = "FlatFace"
sketch15.addGeometry([
    Part.LineSegment(V(508, -449.036161, 0), V(508, -1007.836161, 0)),
    Part.LineSegment(V(508, -1007.836161, 0), V(520.7, -1007.836161, 0)),
    Part.LineSegment(V(520.7, -1007.836161, 0), V(520.7, -449.036161, 0)),
    Part.LineSegment(V(520.7, -449.036161, 0), V(508, -449.036161, 0)),
    Part.LineSegment(V(-520.7, -449.036161, 0), V(-520.7, -1007.836161, 0)),
    Part.LineSegment(V(-520.7, -1007.836161, 0), V(-508, -1007.836161, 0)),
    Part.LineSegment(V(-508, -1007.836161, 0), V(-508, -449.036161, 0)),
    Part.LineSegment(V(-508, -449.036161, 0), V(-520.7, -449.036161, 0)),
], False)
sketch15.addConstraint([
    Sketcher.Constraint("Coincident", 0, 2, 1, 1),
    Sketcher.Constraint("Coincident", 1, 2, 2, 1),
    Sketcher.Constraint("Coincident", 2, 2, 3, 1),
    Sketcher.Constraint("Coincident", 3, 2, 0, 1),
    Sketcher.Constraint("Coincident", 4, 2, 5, 1),
    Sketcher.Constraint("Coincident", 5, 2, 6, 1),
    Sketcher.Constraint("Coincident", 6, 2, 7, 1),
    Sketcher.Constraint("Coincident", 7, 2, 4, 1),
    Sketcher.Constraint("Vertical", 0),
    Sketcher.Constraint("Horizontal", 1),
    Sketcher.Constraint("Vertical", 2),
    Sketcher.Constraint("Horizontal", 3),
    Sketcher.Constraint("Vertical", 4),
    Sketcher.Constraint("Horizontal", 5),
    Sketcher.Constraint("Vertical", 6),
    Sketcher.Constraint("Horizontal", 7),
    Sketcher.Constraint("Symmetric", 1, 2, 4, 2, -2),
    Sketcher.Constraint("Symmetric", 3, 2, 6, 2, -2),
    Sketcher.Constraint("DistanceY", 0, 2, 0, 1, Q("22 in")),
    Sketcher.Constraint("DistanceX", 1, 1, 1, 2, Q("0.5 in")),
    Sketcher.Constraint("DistanceX", -1, 1, 0, 2, Q("20 in")),
    Sketcher.Constraint("DistanceY", 0, 2, -1, 1, 1007.836161),
])
sketch15.setExpression("Constraints[18]", "Params.sketch15_height")
sketch15.setExpression("Constraints[19]", "Params.sketch15_width")
pad15 = body14.newObject("PartDesign::Pad", "Pad014")
pad15.Profile = sketch15
pad15.setExpression("Length", "Params.pad15_length")
pad15.Reversed = True
body15 = doc.addObject("PartDesign::Body", "Body014")

sketch16 = body15.newObject("Sketcher::SketchObject", "Sketch015")
sketch16.AttachmentSupport = (doc.getObject("YZ_Plane014"), [""])
sketch16.MapMode = "FlatFace"
sketch16.AttachmentOffset = App.Placement(V(0, 0, 20.5 * 25.4), App.Rotation())
sketch16.addGeometry([
    Part.LineSegment(V(304.8, -423.636161, 0), V(12.7, -423.636161, 0)),
    Part.LineSegment(V(12.7, -423.636161, 0), V(12.7, -1007.836161, 0)),
    Part.LineSegment(V(12.7, -1007.836161, 0), V(304.8, -1007.836161, 0)),
    Part.LineSegment(V(304.8, -1007.836161, 0), V(304.8, -423.636161, 0)),
], False)
sketch16.addConstraint([
    Sketcher.Constraint("Coincident", 0, 2, 1, 1),
    Sketcher.Constraint("Coincident", 1, 2, 2, 1),
    Sketcher.Constraint("Coincident", 2, 2, 3, 1),
    Sketcher.Constraint("Coincident", 3, 2, 0, 1),
    Sketcher.Constraint("Horizontal", 0),
    Sketcher.Constraint("Vertical", 1),
    Sketcher.Constraint("Horizontal", 2),
    Sketcher.Constraint("Vertical", 3),
    Sketcher.Constraint("DistanceY", 1, 2, 1, 1, Q("23 in")),
    Sketcher.Constraint("DistanceX", 0, 2, 0, 1, Q("11.5 in")),
    Sketcher.Constraint("DistanceX", -1, 1, 2, 2, Q("12 in")),
    Sketcher.Constraint("DistanceY", 0, 2, -1, 1, 423.636161),
])
sketch16.setExpression("Constraints[8]", "Params.sketch16_height")
sketch16.setExpression("Constraints[9]", "Params.sketch16_width")
pad16 = body15.newObject("PartDesign::Pad", "Pad015")
pad16.Profile = sketch16
pad16.setExpression("Length", "Params.pad16_length")
pad16.Reversed = True
body16 = doc.addObject("PartDesign::Body", "Body015")

sketch17 = body16.newObject("Sketcher::SketchObject", "Sketch016")
sketch17.AttachmentSupport = (doc.getObject("YZ_Plane015"), [""])
sketch17.MapMode = "FlatFace"
sketch17.AttachmentOffset = App.Placement(V(0, 0, -20.5 * 25.4), App.Rotation())
sketch17.addGeometry([
    Part.LineSegment(V(12.7, -423.636161, 0), V(304.8, -423.636161, 0)),
    Part.LineSegment(V(304.8, -423.636161, 0), V(304.8, -1007.836161, 0)),
    Part.LineSegment(V(304.8, -1007.836161, 0), V(12.7, -1007.836161, 0)),
    Part.LineSegment(V(12.7, -1007.836161, 0), V(12.7, -423.636161, 0)),
], False)
sketch17.addConstraint([
    Sketcher.Constraint("Coincident", 0, 2, 1, 1),
    Sketcher.Constraint("Coincident", 1, 2, 2, 1),
    Sketcher.Constraint("Coincident", 2, 2, 3, 1),
    Sketcher.Constraint("Coincident", 3, 2, 0, 1),
    Sketcher.Constraint("Horizontal", 0),
    Sketcher.Constraint("Vertical", 1),
    Sketcher.Constraint("Horizontal", 2),
    Sketcher.Constraint("Vertical", 3),
    Sketcher.Constraint("DistanceY", 1, 2, 1, 1, Q("23 in")),
    Sketcher.Constraint("DistanceX", 0, 1, 0, 2, Q("11.5 in")),
    Sketcher.Constraint("DistanceX", -1, 1, 0, 2, Q("12 in")),
    Sketcher.Constraint("DistanceY", 0, 2, -1, 1, 423.636161),
])
sketch17.setExpression("Constraints[8]", "Params.sketch17_height")
sketch17.setExpression("Constraints[9]", "Params.sketch17_width")
pad17 = body16.newObject("PartDesign::Pad", "Pad016")
pad17.Profile = sketch17
pad17.setExpression("Length", "Params.pad17_length")
body17 = doc.addObject("PartDesign::Body", "Body016")

sketch18 = body17.newObject("Sketcher::SketchObject", "Sketch017")
sketch18.AttachmentSupport = (doc.getObject("YZ_Plane016"), [""])
sketch18.MapMode = "FlatFace"
sketch18.AttachmentOffset = App.Placement(V(0, 0, -20.5 * 25.4), App.Rotation())
sketch18.addGeometry([
    Part.LineSegment(V(12.7, 986.063839, 0), V(317.5, 986.063839, 0)),
    Part.LineSegment(V(317.5, 986.063839, 0), V(317.5, -410.936161, 0)),
    Part.LineSegment(V(317.5, -410.936161, 0), V(12.7, -410.936161, 0)),
    Part.LineSegment(V(12.7, -410.936161, 0), V(12.7, 986.063839, 0)),
], False)
sketch18.addConstraint([
    Sketcher.Constraint("Coincident", 0, 2, 1, 1),
    Sketcher.Constraint("Coincident", 1, 2, 2, 1),
    Sketcher.Constraint("Coincident", 2, 2, 3, 1),
    Sketcher.Constraint("Coincident", 3, 2, 0, 1),
    Sketcher.Constraint("Horizontal", 0),
    Sketcher.Constraint("Vertical", 1),
    Sketcher.Constraint("Horizontal", 2),
    Sketcher.Constraint("Vertical", 3),
    Sketcher.Constraint("DistanceX", 0, 1, 0, 2, Q("12 in")),
    Sketcher.Constraint("DistanceY", 1, 2, 1, 1, Q("55 in")),
    Sketcher.Constraint("DistanceX", -1, 1, 0, 2, Q("12.5 in")),
    Sketcher.Constraint("DistanceY", -1, 1, 0, 2, 986.063839),
])
sketch18.setExpression("Constraints[8]", "Params.sketch18_width")
sketch18.setExpression("Constraints[9]", "Params.sketch18_height")
pad18 = body17.newObject("PartDesign::Pad", "Pad017")
pad18.Profile = sketch18
pad18.setExpression("Length", "Params.pad18_length")
body18 = doc.addObject("PartDesign::Body", "Body017")

sketch19 = body18.newObject("Sketcher::SketchObject", "Sketch018")
sketch19.AttachmentSupport = (doc.getObject("YZ_Plane017"), [""])
sketch19.MapMode = "FlatFace"
sketch19.AttachmentOffset = App.Placement(V(0, 0, 20.5 * 25.4), App.Rotation())
sketch19.addGeometry([
    Part.LineSegment(V(304.8, 986.063839, 0), V(12.7, 986.063839, 0)),
    Part.LineSegment(V(12.7, 986.063839, 0), V(12.7, -410.936161, 0)),
    Part.LineSegment(V(12.7, -410.936161, 0), V(304.8, -410.936161, 0)),
    Part.LineSegment(V(304.8, -410.936161, 0), V(304.8, 986.063839, 0)),
], False)
sketch19.addConstraint([
    Sketcher.Constraint("Coincident", 0, 2, 1, 1),
    Sketcher.Constraint("Coincident", 1, 2, 2, 1),
    Sketcher.Constraint("Coincident", 2, 2, 3, 1),
    Sketcher.Constraint("Coincident", 3, 2, 0, 1),
    Sketcher.Constraint("Horizontal", 0),
    Sketcher.Constraint("Vertical", 1),
    Sketcher.Constraint("Horizontal", 2),
    Sketcher.Constraint("Vertical", 3),
    Sketcher.Constraint("DistanceY", 1, 2, 1, 1, Q("55 in")),
    Sketcher.Constraint("DistanceX", 0, 2, 0, 1, Q("11.5 in")),
    Sketcher.Constraint("DistanceX", -1, 1, 2, 2, Q("12 in")),
    Sketcher.Constraint("DistanceY", -1, 1, 0, 2, 986.063839),
])
sketch19.setExpression("Constraints[8]", "Params.sketch19_height")
sketch19.setExpression("Constraints[9]", "Params.sketch19_width")
pad19 = body18.newObject("PartDesign::Pad", "Pad018")
pad19.Profile = sketch19
pad19.setExpression("Length", "Params.pad19_length")
pad19.Reversed = True

doc.recompute()
